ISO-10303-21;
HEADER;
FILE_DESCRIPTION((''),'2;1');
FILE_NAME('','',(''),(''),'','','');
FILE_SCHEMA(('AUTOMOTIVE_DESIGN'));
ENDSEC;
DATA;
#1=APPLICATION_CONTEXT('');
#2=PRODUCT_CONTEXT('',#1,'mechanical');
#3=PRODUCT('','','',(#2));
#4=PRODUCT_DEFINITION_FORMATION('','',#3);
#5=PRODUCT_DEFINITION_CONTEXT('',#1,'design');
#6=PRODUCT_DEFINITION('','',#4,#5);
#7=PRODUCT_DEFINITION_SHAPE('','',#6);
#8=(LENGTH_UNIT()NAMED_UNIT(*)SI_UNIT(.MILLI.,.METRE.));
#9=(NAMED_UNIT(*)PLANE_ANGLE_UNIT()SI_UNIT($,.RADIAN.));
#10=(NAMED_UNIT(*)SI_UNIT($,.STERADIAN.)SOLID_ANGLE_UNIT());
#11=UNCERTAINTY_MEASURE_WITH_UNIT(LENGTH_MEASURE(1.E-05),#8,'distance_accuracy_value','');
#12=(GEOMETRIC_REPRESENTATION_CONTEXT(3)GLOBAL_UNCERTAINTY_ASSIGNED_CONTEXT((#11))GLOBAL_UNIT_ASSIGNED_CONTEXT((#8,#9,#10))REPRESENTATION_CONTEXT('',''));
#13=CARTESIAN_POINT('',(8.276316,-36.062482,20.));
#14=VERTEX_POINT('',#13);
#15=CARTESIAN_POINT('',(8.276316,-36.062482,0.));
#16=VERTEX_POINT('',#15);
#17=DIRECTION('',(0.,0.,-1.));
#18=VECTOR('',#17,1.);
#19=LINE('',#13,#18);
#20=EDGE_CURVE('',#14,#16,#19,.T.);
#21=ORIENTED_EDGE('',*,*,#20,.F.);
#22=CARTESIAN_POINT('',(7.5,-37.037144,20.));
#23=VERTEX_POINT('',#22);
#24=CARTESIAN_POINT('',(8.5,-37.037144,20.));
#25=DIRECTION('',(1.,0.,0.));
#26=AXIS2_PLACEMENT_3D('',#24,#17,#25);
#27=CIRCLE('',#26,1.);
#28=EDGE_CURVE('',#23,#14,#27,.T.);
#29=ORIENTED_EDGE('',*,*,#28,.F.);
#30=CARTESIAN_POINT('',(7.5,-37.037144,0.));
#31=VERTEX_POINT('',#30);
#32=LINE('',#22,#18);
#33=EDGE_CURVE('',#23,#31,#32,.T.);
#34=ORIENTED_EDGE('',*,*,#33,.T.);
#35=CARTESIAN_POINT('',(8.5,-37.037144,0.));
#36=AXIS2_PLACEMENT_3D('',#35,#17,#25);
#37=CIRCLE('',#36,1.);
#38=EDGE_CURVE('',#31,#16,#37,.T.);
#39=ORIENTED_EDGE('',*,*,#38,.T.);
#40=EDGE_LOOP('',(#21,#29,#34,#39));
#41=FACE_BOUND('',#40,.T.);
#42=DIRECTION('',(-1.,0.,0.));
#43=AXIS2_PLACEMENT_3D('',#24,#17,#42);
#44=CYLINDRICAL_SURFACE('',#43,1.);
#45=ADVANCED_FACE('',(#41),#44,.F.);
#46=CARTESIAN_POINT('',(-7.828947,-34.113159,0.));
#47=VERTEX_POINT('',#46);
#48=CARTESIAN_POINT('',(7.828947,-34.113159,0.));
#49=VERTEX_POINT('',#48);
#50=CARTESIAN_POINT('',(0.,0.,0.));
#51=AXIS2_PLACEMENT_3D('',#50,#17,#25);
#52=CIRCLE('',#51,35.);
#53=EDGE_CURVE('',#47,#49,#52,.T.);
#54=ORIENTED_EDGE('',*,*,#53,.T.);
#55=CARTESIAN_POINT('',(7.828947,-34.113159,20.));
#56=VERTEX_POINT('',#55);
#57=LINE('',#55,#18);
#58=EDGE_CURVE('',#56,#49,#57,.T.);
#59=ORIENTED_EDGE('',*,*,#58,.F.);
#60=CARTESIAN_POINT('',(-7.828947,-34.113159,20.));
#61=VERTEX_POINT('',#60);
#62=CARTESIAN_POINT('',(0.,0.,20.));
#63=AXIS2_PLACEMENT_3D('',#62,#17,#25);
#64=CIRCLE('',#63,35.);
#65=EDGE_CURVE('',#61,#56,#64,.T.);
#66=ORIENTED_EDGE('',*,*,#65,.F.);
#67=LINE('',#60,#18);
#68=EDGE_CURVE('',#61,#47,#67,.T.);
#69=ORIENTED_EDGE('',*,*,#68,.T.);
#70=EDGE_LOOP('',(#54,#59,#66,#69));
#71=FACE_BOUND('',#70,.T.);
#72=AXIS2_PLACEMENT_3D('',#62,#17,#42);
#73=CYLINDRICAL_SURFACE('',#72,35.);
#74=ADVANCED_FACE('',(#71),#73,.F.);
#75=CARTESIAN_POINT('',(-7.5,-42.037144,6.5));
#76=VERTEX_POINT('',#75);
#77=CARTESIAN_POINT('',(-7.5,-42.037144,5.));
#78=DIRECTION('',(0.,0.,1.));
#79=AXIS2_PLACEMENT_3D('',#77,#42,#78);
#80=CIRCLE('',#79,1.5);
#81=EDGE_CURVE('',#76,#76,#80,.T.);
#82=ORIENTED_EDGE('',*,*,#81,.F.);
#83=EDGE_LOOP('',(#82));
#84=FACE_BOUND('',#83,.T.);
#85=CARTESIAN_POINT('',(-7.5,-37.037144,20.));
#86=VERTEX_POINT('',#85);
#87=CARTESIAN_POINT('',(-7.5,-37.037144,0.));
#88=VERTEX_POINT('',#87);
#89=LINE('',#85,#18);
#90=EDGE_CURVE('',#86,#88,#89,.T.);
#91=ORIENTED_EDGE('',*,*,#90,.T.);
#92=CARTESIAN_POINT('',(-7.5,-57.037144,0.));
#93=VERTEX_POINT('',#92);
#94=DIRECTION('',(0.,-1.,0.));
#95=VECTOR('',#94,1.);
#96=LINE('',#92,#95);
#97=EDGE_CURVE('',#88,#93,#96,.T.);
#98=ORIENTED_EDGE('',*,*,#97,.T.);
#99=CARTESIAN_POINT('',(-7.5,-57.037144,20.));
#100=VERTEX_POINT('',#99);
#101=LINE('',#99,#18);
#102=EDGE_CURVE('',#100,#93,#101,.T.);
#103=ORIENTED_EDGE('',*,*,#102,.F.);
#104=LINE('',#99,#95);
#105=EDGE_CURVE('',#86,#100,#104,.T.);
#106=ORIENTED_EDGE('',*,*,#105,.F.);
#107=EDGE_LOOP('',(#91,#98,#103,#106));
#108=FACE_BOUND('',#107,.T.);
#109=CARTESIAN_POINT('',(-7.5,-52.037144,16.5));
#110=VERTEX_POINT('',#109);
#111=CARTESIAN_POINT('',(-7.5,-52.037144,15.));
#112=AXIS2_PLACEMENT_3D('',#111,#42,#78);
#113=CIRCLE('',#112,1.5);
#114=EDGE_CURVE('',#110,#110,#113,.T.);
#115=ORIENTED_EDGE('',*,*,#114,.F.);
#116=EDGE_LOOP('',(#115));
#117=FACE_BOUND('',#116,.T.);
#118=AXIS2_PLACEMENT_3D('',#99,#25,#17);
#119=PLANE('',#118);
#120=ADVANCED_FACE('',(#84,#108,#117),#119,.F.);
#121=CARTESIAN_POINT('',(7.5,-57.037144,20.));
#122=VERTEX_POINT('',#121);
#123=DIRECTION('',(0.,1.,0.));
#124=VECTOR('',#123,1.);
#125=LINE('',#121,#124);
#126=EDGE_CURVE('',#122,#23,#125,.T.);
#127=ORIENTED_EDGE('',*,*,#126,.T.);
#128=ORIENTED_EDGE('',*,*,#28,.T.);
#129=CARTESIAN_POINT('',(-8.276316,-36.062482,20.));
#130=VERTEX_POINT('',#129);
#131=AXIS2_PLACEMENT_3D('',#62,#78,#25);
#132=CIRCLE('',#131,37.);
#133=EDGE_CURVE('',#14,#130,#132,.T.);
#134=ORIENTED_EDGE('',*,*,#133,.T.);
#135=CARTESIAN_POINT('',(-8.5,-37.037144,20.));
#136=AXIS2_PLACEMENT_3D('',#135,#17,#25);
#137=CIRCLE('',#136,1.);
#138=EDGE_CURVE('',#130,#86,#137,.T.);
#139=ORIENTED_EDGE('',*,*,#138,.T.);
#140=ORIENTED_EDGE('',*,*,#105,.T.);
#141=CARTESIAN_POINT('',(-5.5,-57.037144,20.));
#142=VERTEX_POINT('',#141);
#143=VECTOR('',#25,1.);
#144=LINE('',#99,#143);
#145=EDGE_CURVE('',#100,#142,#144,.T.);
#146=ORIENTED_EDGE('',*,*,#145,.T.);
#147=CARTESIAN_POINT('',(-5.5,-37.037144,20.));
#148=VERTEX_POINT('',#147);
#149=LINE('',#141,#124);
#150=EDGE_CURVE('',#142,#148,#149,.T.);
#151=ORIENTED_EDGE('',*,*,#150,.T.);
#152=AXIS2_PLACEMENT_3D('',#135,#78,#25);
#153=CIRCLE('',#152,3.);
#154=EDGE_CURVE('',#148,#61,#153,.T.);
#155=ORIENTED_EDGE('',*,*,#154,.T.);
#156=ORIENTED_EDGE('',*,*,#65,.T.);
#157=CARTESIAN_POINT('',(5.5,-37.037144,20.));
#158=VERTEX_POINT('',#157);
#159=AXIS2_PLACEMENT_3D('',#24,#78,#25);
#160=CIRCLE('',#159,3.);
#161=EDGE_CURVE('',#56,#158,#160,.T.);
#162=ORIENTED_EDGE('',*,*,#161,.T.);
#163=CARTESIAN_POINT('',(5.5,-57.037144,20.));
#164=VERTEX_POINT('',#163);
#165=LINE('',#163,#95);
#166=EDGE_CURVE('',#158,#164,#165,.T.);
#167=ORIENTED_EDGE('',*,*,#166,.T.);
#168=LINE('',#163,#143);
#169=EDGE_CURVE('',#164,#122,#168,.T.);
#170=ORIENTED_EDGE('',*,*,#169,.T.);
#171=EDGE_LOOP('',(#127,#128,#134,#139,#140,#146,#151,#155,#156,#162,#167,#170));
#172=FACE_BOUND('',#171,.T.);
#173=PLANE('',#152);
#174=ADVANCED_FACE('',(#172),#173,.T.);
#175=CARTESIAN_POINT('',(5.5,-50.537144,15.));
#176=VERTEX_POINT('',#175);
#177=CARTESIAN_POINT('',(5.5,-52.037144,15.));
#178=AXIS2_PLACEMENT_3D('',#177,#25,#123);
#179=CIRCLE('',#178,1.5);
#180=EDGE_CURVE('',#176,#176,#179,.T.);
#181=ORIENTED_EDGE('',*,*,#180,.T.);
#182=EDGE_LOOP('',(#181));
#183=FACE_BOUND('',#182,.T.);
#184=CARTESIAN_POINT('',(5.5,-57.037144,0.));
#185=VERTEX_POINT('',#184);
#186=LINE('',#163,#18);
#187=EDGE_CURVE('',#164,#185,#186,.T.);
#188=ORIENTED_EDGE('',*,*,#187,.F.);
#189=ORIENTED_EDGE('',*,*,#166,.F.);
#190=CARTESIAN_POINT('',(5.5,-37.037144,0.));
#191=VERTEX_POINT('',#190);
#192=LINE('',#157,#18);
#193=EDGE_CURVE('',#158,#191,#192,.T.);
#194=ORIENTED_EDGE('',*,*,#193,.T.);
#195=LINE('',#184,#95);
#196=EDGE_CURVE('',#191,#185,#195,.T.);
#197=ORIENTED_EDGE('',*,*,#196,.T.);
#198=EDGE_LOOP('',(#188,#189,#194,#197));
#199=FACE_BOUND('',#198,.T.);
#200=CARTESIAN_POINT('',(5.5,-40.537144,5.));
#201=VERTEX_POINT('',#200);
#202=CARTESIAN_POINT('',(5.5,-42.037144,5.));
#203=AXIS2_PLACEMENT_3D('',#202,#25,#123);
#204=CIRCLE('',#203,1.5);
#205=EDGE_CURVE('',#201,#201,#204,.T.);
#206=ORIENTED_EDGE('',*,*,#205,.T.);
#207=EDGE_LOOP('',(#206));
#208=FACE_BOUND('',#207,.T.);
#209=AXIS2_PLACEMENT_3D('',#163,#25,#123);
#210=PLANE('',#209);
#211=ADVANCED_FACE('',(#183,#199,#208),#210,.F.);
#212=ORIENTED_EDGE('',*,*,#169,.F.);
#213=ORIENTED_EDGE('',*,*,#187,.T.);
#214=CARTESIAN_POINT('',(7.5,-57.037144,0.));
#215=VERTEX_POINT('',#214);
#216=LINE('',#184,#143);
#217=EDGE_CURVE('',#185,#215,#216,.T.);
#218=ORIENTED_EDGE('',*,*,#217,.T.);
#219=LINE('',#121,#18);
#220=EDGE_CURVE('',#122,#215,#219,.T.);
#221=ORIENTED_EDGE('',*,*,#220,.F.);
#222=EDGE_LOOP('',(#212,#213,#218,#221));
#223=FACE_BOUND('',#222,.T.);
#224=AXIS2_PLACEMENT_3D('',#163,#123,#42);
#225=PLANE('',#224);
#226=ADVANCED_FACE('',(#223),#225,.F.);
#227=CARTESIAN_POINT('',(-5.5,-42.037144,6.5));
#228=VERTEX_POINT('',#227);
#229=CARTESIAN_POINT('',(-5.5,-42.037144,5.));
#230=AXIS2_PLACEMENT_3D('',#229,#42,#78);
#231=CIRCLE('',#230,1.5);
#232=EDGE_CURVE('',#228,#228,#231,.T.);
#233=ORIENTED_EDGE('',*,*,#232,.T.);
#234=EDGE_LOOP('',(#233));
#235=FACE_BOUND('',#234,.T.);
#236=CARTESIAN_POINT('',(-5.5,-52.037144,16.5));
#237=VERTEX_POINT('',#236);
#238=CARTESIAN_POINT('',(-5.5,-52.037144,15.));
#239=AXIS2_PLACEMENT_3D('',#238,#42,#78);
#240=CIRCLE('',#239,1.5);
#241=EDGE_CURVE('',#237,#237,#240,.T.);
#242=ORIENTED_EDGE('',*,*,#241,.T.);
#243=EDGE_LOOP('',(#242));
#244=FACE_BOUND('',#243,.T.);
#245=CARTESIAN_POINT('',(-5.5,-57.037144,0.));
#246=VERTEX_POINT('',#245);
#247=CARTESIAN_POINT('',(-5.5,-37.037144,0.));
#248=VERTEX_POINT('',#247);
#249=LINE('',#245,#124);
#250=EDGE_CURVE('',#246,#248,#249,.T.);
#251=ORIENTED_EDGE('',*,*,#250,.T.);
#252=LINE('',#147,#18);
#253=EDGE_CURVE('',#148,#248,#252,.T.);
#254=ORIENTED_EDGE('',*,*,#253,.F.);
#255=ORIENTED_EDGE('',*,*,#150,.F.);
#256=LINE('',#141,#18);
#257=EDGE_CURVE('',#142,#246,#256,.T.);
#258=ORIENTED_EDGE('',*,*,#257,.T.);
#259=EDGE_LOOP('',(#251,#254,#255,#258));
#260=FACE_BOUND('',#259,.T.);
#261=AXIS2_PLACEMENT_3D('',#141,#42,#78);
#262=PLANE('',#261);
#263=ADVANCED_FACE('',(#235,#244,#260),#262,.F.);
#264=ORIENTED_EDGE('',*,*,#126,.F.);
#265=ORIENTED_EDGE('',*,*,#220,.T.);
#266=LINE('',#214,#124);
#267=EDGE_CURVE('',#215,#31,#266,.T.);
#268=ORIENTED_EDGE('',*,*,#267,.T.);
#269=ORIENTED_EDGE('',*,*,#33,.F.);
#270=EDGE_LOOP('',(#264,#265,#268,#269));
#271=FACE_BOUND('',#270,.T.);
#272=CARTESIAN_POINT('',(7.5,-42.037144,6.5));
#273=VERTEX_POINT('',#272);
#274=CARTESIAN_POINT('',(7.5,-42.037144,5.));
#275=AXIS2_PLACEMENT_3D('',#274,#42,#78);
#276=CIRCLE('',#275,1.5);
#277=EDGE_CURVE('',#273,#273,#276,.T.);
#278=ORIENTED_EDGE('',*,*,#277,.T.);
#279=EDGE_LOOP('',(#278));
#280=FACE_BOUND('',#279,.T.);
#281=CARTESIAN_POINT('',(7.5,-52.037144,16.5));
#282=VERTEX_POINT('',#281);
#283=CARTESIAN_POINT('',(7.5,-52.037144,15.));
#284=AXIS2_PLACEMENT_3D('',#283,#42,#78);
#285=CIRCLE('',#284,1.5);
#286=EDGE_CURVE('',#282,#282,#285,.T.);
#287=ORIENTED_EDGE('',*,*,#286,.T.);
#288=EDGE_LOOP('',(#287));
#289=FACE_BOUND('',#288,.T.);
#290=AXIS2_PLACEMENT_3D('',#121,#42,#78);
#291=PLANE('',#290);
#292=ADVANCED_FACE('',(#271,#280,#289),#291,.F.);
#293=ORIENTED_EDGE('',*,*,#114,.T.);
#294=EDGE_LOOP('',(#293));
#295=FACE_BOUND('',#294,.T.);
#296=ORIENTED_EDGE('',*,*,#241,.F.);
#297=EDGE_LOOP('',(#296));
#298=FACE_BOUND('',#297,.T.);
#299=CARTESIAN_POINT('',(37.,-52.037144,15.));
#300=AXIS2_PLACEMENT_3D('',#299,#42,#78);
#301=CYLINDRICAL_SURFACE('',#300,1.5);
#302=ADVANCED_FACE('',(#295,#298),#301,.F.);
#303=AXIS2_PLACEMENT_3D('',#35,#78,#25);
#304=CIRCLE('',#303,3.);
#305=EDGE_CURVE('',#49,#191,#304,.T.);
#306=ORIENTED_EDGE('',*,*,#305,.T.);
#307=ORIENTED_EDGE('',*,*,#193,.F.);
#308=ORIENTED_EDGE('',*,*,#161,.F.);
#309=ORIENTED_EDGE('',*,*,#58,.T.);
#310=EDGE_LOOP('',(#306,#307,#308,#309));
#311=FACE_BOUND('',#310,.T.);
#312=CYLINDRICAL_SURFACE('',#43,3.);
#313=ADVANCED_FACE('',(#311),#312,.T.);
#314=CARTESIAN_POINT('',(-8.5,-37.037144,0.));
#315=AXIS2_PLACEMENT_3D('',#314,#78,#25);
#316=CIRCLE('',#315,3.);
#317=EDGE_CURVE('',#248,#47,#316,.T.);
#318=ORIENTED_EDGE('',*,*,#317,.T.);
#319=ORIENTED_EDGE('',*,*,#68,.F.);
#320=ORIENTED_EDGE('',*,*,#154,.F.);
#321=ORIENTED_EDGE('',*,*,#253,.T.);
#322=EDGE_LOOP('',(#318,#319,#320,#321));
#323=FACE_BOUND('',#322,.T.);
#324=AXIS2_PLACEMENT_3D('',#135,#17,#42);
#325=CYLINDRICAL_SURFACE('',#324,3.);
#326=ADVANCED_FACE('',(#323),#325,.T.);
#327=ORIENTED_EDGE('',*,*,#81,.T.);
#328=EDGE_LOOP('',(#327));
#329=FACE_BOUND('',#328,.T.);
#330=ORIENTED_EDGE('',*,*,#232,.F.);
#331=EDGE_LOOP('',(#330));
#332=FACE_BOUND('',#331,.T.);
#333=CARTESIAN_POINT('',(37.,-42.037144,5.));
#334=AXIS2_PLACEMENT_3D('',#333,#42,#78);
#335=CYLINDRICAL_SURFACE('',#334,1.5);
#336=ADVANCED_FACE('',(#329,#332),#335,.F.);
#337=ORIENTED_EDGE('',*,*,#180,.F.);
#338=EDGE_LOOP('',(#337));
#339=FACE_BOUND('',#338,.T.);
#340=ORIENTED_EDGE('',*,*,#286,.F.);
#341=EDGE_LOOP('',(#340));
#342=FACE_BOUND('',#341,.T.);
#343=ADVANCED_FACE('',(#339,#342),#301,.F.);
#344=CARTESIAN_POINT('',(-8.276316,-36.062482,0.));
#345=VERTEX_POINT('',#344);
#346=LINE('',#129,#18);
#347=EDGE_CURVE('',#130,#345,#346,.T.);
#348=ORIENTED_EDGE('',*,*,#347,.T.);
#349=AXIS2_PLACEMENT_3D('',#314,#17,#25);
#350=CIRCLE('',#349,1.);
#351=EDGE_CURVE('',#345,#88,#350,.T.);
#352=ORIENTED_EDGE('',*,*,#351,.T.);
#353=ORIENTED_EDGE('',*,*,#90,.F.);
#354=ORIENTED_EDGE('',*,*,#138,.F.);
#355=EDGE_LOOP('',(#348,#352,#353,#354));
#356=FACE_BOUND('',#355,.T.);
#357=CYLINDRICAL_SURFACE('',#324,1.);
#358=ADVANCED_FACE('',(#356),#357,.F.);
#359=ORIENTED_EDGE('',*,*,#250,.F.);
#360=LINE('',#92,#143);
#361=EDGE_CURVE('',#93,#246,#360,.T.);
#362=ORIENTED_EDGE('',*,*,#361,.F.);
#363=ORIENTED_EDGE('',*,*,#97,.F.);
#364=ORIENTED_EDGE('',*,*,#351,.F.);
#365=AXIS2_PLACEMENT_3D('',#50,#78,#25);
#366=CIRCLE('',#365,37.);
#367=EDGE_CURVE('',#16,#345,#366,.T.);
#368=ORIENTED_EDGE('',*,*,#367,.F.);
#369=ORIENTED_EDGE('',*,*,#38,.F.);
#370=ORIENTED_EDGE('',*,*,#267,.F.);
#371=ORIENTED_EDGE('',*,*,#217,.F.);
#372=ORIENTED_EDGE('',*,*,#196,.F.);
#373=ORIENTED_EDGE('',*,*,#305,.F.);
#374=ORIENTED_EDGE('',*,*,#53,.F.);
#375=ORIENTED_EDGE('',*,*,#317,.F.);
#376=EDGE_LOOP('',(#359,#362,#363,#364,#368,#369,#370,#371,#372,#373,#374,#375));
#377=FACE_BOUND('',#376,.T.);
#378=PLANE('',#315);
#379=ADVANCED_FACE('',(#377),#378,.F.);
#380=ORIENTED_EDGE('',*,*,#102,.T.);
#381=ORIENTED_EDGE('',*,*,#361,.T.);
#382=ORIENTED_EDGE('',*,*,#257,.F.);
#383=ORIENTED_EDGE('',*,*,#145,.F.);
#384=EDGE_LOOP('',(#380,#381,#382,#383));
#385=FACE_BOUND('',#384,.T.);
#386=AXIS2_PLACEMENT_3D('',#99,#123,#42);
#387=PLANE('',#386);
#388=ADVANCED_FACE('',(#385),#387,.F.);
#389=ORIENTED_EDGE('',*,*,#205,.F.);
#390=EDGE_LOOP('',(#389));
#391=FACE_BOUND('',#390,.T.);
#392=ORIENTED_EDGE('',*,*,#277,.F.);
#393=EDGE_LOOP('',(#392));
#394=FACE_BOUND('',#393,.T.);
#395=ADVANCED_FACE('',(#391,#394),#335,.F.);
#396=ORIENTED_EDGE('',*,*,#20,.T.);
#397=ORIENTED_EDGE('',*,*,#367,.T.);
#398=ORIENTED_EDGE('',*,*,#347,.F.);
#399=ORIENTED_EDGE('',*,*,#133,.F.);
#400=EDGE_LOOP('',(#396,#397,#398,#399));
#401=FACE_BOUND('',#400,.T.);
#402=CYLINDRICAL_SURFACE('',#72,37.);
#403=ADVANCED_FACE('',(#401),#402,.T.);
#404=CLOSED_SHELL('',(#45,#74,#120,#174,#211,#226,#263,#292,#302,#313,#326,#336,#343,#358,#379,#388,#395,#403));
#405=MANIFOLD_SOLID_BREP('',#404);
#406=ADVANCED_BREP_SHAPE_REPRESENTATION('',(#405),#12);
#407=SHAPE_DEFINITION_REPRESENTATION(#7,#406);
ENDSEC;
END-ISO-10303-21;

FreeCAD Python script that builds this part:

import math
import FreeCAD as App
import Part
import Sketcher
from FreeCAD import Vector

doc = App.newDocument("Part")
body = doc.addObject("PartDesign::Body", "Body")

sketch1 = body.newObject("Sketcher::SketchObject", "Sketch")
sketch1.AttachmentSupport = (doc.getObject("XY_Plane"), [""])
sketch1.MapMode = "FlatFace"
sketch1.addGeometry([
    Part.LineSegment(Vector(5.5, -57.037144, 0), Vector(7.5, -57.037144, 0)),
    Part.LineSegment(Vector(7.5, -57.037144, 0), Vector(7.5, -37.037144, 0)),
    Part.ArcOfCircle(Part.Circle(Vector(8.5, -37.037144, 0), Vector(0, 0, 1), 1), math.radians(102.925517), math.radians(180)),
    Part.ArcOfCircle(Part.Circle(Vector(0, 0, 0), Vector(0, 0, 1), 37), math.radians(-77.074483), math.radians(257.074483)),
    Part.ArcOfCircle(Part.Circle(Vector(-8.5, -37.037144, 0), Vector(0, 0, 1), 1), math.radians(0), math.radians(77.074483)),
    Part.LineSegment(Vector(-7.5, -37.037144, 0), Vector(-7.5, -57.037144, 0)),
    Part.LineSegment(Vector(-7.5, -57.037144, 0), Vector(-5.5, -57.037144, 0)),
    Part.LineSegment(Vector(-5.5, -57.037144, 0), Vector(-5.5, -37.037144, 0)),
    Part.ArcOfCircle(Part.Circle(Vector(-8.5, -37.037144, 0), Vector(0, 0, 1), 3), math.radians(0), math.radians(77.074483)),
    Part.ArcOfCircle(Part.Circle(Vector(0, 0, 0), Vector(0, 0, 1), 35), math.radians(-77.074483), math.radians(257.074483)),
    Part.ArcOfCircle(Part.Circle(Vector(8.5, -37.037144, 0), Vector(0, 0, 1), 3), math.radians(102.925517), math.radians(180)),
    Part.LineSegment(Vector(5.5, -37.037144, 0), Vector(5.5, -57.037144, 0)),
], False)
sketch1.addConstraint([
    Sketcher.Constraint("Coincident", 0, 2, 1, 1),
    Sketcher.Constraint("Tangent", 1, 2, 2, 2),
    Sketcher.Constraint("Tangent", 2, 1, 3, 1),
    Sketcher.Constraint("Tangent", 3, 2, 4, 2),
    Sketcher.Constraint("Tangent", 4, 1, 5, 1),
    Sketcher.Constraint("Coincident", 5, 2, 6, 1),
    Sketcher.Constraint("Coincident", 6, 2, 7, 1),
    Sketcher.Constraint("Tangent", 7, 2, 8, 1),
    Sketcher.Constraint("Tangent", 8, 2, 9, 2),
    Sketcher.Constraint("Tangent", 9, 1, 10, 1),
    Sketcher.Constraint("Tangent", 10, 2, 11, 1),
    Sketcher.Constraint("Coincident", 11, 2, 0, 1),
    Sketcher.Constraint("Horizontal", 0),
    Sketcher.Constraint("Vertical", 1),
    Sketcher.Constraint("Vertical", 5),
    Sketcher.Constraint("Horizontal", 6),
    Sketcher.Constraint("Vertical", 7),
    Sketcher.Constraint("Vertical", 11),
    Sketcher.Constraint("Coincident", 3, 3, -1, 1),
    Sketcher.Constraint("Coincident", 9, 3, -1, 1),
    Sketcher.Constraint("Coincident", 8, 3, 4, 3),
    Sketcher.Constraint("Coincident", 10, 3, 2, 3),
    Sketcher.Constraint("Equal", 2, 4),
    Sketcher.Constraint("Symmetric", 0, 2, 5, 2, -2),
    Sketcher.Constraint("Radius", 2, 1.0),
    Sketcher.Constraint("Radius", 3, 37.0),
    Sketcher.Constraint("Radius", 8, 3.0),
    Sketcher.Constraint("DistanceY", 1, 1, 1, 2, 20.0),
    Sketcher.Constraint("DistanceX", 4, 3, 2, 3, 17.0),
])
pad1 = body.newObject("PartDesign::Pad", "Pad")
pad1.Profile = sketch1
pad1.Length = 20

sketch2 = body.newObject("Sketcher::SketchObject", "Sketch001")
sketch2.AttachmentSupport = (doc.getObject("YZ_Plane"), [""])
sketch2.MapMode = "FlatFace"
sketch2.AttachmentOffset = App.Placement(Vector(0, 0, -7.5), App.Rotation())
sketch2.addGeometry(Part.Circle(Vector(-52.037144, 15, 0), Vector(0, 0, 1), 1.5), False)
sketch2.addConstraint([
    Sketcher.Constraint("Diameter", 0, 3.0),
    Sketcher.Constraint("DistanceY", -1, 1, 0, 3, 15.0),
    Sketcher.Constraint("DistanceX", 0, 3, -1, 1, 52.037144),
])
pocket1 = body.newObject("PartDesign::Pocket", "Pocket")
pocket1.Profile = sketch2
pocket1.Type = "ThroughAll"
pocket1.Reversed = True

sketch3 = body.newObject("Sketcher::SketchObject", "Sketch002")
sketch3.AttachmentSupport = (doc.getObject("YZ_Plane"), [""])
sketch3.MapMode = "FlatFace"
sketch3.AttachmentOffset = App.Placement(Vector(0, 0, -7.5), App.Rotation())
sketch3.addGeometry(Part.Circle(Vector(-42.037144, 5, 0), Vector(0, 0, 1), 1.5), False)
sketch3.addConstraint([
    Sketcher.Constraint("Diameter", 0, 3.0),
    Sketcher.Constraint("DistanceY", -1, 1, 0, 3, 5.0),
    Sketcher.Constraint("DistanceX", 0, 3, -1, 1, 42.037144),
])
pocket2 = body.newObject("PartDesign::Pocket", "Pocket001")
pocket2.Profile = sketch3
pocket2.Type = "ThroughAll"
pocket2.Reversed = True

doc.recompute()
